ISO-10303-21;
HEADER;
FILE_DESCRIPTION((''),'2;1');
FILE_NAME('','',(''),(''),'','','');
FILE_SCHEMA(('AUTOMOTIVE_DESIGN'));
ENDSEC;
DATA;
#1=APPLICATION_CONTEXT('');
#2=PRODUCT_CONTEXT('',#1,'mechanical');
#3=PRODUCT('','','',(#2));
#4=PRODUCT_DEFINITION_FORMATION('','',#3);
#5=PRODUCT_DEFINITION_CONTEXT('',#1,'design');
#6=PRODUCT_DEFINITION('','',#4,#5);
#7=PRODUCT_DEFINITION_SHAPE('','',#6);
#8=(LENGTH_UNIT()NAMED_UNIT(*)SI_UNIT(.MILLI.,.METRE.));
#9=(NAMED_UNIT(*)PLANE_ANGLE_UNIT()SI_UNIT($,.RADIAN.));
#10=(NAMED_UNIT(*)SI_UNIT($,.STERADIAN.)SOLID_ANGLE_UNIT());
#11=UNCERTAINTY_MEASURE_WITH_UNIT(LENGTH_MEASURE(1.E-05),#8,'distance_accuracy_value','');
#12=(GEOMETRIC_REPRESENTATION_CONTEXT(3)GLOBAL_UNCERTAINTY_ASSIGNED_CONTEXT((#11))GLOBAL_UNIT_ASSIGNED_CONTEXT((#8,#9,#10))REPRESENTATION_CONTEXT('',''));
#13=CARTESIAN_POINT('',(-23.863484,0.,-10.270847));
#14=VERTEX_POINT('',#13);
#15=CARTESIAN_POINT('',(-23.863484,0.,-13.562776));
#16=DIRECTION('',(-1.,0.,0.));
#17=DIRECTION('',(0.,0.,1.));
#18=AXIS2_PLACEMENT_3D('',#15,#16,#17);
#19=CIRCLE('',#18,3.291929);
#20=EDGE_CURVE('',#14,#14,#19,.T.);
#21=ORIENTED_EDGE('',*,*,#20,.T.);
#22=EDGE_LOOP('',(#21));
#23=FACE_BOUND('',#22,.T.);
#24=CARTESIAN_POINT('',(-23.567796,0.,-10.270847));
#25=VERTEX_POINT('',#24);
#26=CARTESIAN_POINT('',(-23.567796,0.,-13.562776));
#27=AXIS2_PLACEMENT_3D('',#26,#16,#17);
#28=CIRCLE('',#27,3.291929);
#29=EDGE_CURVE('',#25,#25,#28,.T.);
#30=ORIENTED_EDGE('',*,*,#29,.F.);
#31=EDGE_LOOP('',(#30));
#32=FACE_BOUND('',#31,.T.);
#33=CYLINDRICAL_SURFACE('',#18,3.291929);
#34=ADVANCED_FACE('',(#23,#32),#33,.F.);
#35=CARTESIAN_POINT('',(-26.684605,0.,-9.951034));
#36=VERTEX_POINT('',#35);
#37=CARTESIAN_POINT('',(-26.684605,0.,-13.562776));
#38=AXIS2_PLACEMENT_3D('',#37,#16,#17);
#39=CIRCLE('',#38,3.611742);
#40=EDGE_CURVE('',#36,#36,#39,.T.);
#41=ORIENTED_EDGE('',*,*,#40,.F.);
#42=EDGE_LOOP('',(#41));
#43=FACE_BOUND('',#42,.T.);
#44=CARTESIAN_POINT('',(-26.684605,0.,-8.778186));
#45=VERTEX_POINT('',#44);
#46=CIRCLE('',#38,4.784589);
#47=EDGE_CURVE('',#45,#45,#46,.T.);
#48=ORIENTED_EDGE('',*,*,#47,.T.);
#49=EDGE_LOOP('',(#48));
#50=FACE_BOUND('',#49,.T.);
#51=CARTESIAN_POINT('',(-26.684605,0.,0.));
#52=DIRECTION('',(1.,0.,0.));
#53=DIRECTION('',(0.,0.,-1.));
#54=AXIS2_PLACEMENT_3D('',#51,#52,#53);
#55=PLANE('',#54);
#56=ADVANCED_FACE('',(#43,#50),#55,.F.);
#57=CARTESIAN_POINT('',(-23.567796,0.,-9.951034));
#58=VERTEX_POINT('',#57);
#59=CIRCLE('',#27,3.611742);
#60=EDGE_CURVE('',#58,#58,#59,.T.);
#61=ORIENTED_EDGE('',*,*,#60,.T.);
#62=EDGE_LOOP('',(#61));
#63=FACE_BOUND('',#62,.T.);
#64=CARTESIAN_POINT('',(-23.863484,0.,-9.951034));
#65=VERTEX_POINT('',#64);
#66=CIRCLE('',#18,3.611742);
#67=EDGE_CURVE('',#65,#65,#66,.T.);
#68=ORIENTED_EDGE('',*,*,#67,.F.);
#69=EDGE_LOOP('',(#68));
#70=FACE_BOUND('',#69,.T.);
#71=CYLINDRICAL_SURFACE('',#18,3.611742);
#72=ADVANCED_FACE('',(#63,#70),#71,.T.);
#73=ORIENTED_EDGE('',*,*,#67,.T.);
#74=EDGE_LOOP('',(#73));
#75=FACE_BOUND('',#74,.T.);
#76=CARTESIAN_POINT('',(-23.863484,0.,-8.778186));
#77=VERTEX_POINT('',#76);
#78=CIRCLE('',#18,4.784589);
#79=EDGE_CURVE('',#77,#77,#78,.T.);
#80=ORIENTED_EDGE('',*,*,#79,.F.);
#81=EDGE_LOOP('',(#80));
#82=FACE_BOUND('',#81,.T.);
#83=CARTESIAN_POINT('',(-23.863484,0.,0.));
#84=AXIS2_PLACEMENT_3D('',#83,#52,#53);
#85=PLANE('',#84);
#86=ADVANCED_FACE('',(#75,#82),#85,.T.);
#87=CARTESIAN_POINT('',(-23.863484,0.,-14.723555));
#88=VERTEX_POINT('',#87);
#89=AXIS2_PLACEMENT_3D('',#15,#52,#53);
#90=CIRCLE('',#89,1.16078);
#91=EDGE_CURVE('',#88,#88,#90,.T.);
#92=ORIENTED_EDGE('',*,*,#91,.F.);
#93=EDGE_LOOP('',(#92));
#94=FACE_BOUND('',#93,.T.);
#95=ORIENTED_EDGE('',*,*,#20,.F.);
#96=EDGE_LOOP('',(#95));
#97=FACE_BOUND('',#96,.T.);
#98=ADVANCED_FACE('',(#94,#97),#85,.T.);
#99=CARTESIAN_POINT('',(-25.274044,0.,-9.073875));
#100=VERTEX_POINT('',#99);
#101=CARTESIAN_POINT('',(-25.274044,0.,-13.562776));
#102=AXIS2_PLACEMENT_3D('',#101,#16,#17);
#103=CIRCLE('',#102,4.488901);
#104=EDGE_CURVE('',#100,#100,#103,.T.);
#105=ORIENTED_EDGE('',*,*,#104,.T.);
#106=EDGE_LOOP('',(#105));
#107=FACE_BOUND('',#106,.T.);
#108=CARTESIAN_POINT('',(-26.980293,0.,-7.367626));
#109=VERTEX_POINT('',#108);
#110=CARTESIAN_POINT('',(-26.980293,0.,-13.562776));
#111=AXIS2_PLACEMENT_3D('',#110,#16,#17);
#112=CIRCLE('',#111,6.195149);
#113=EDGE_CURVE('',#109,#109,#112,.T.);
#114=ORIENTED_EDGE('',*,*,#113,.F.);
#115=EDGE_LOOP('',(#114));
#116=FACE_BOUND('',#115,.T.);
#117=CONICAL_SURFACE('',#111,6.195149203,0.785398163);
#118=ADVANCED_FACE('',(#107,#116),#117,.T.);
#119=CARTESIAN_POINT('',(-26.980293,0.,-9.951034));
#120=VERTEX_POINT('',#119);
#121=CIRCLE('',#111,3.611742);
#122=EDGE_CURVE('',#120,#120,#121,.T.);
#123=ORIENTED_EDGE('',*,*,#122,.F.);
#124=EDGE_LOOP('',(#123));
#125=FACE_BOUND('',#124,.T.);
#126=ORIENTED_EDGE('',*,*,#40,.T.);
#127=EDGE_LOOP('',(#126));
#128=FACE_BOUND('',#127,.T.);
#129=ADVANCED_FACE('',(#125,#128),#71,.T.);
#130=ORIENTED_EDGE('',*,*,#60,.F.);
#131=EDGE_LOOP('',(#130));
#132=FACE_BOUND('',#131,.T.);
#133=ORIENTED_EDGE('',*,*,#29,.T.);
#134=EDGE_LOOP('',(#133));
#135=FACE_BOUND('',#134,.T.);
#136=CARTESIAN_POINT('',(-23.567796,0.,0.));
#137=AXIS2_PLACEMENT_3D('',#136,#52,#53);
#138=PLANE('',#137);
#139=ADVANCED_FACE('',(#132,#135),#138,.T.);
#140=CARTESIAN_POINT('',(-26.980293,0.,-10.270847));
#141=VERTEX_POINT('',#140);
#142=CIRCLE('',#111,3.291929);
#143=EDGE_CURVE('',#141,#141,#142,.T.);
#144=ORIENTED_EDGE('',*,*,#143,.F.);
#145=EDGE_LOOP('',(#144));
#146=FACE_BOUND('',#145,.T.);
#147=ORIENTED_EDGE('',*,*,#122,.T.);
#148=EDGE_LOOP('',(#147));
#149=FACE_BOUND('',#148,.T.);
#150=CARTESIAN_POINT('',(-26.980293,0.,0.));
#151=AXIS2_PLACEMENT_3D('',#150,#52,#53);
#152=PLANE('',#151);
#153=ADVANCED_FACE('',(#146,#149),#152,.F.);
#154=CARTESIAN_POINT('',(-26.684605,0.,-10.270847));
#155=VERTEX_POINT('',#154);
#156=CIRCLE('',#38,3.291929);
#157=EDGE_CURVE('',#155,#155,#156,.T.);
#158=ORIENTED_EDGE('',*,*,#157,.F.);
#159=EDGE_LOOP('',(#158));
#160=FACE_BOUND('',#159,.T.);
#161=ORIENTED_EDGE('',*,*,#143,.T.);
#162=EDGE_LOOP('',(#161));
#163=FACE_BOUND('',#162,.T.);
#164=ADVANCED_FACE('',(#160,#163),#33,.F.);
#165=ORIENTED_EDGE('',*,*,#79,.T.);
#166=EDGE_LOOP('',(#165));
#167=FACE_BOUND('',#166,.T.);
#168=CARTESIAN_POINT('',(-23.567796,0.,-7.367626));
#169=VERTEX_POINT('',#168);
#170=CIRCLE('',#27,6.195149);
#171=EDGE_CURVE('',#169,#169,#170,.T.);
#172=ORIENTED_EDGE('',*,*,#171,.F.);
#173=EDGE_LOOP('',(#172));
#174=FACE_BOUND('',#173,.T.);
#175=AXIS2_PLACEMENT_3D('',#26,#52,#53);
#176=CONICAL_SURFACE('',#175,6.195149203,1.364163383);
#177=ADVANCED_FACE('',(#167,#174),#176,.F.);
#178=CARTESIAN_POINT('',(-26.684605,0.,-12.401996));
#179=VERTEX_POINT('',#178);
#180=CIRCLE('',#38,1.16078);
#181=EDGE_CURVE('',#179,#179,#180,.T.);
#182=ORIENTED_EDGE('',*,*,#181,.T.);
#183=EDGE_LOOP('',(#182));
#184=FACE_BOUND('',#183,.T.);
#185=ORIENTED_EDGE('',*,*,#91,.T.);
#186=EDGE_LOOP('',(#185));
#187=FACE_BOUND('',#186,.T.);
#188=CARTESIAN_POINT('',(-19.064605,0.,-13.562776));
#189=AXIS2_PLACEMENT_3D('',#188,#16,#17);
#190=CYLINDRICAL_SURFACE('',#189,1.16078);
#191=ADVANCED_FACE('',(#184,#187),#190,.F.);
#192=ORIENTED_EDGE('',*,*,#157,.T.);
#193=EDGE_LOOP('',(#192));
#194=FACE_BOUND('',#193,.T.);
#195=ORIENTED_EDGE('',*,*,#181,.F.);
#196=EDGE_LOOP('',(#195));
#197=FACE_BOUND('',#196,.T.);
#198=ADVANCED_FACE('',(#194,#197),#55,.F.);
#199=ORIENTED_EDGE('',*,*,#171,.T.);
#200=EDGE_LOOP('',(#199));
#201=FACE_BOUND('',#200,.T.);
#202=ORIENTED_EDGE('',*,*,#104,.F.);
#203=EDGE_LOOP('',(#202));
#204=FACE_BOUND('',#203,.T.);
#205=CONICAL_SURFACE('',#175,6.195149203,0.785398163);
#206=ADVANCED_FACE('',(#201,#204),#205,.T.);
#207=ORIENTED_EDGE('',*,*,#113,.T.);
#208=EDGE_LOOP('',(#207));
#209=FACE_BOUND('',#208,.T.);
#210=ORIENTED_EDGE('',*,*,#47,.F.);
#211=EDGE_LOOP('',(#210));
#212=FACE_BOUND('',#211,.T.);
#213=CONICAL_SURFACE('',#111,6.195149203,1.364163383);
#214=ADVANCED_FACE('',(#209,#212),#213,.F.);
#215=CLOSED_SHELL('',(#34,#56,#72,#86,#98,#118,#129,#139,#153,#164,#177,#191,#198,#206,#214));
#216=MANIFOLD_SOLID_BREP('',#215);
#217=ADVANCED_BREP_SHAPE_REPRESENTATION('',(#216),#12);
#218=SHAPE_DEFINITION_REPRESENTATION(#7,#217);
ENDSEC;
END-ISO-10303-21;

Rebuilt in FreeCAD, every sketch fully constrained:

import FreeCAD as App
import Part
import Sketcher

V = App.Vector
Q = App.Units.Quantity


def add_polygon(sketch, points):
    """Adds a closed chain of lines whose ends are joined by coincident constraints."""
    first, n = sketch.GeometryCount, len(points)
    for a, b in zip(points, points[1:] + points[:1]):
        sketch.addGeometry(Part.LineSegment(App.Vector(*a, 0), App.Vector(*b, 0)), False)
    for i in range(n):
        sketch.addConstraint(Sketcher.Constraint("Coincident", first + i, 2, first + (i + 1) % n, 1))

doc = App.newDocument("Part")
body = doc.addObject("PartDesign::Body", "Body")

# Sketch on XZ plane
sketch1 = body.newObject("Sketcher::SketchObject", "Sketch")
sketch1.AttachmentSupport = (doc.getObject("XZ_Plane"), [""])
sketch1.MapMode = "FlatFace"
add_polygon(sketch1, [(-25.27, -9.07), (-23.57, -7.37), (-23.86, -8.78), (-23.86, -9.95), (-23.57, -9.95), (-23.57, -10.27), (-23.86, -10.27), (-23.86, -13.56), (-26.68, -13.56), (-26.68, -10.27), (-26.98, -10.27), (-26.98, -9.95), (-26.68, -9.95), (-26.68, -8.78), (-26.98, -7.37)])  # lines 0-14
sketch1.addGeometry(Part.LineSegment(V(-26.98, -13.56, 0), V(-23.57, -13.56, 0)), True)  # axis
sketch1.addConstraint([
    Sketcher.Constraint("Vertical", 2),
    Sketcher.Constraint("Horizontal", 3),
    Sketcher.Constraint("Vertical", 4),
    Sketcher.Constraint("Horizontal", 5),
    Sketcher.Constraint("Vertical", 6),
    Sketcher.Constraint("Horizontal", 7),
    Sketcher.Constraint("Vertical", 8),
    Sketcher.Constraint("Horizontal", 9),
    Sketcher.Constraint("Vertical", 10),
    Sketcher.Constraint("Horizontal", 11),
    Sketcher.Constraint("Vertical", 12),
    Sketcher.Constraint("Horizontal", 15),
    Sketcher.Constraint("Perpendicular", 0, 14),
    Sketcher.Constraint("Horizontal", 5, 2, 8, 2),
    Sketcher.Constraint("Horizontal", 3, 2, 10, 2),
    Sketcher.Constraint("Horizontal", 1, 2, 12, 2),
    Sketcher.Constraint("Horizontal", 0, 2, 13, 2),
    Sketcher.Constraint("Horizontal", 7, 2, 15, 1),
    Sketcher.Constraint("Vertical", 0, 2, 3, 2),
    Sketcher.Constraint("Vertical", 2, 2, 5, 2),
    Sketcher.Constraint("Vertical", 8, 2, 11, 2),
    Sketcher.Constraint("Vertical", 10, 2, 13, 2),
    Sketcher.Constraint("Vertical", 13, 2, 15, 1),
    Sketcher.Constraint("Vertical", 4, 2, 15, 2),
    Sketcher.Constraint("Equal", 5, 9),
    Sketcher.Constraint("Equal", 0, 14),
    Sketcher.Constraint("Distance", 0, Q("0.095 in")),
    Sketcher.Constraint("DistanceY", 4, 2, 0, 2, Q("0.1143 in")),
    Sketcher.Constraint("DistanceX", 3, 1, 3, 2, Q("0.295689 mm")),
    Sketcher.Constraint("DistanceY", 6, 2, 6, 1, Q("3.291929 mm")),
    Sketcher.Constraint("Distance", 1, Q("1.441219 mm")),
    Sketcher.Constraint("DistanceY", 2, 2, 2, 1, Q("1.172847 mm")),
    Sketcher.Constraint("DistanceX", 0, 2, -1, 1, Q("23.567796 mm")),
    Sketcher.Constraint("DistanceY", 0, 2, -1, 1, Q("7.367626 mm")),
])
revolution = body.newObject("PartDesign::Revolution", "Revolution")
revolution.Profile = sketch1
revolution.ReferenceAxis = (sketch1, ["Axis0"])
revolution.Angle = 360

# Sketch on YZ plane
sketch2 = body.newObject("Sketcher::SketchObject", "Sketch001")
sketch2.AttachmentSupport = (doc.getObject("YZ_Plane"), [""])
sketch2.MapMode = "FlatFace"
sketch2.AttachmentOffset = App.Placement(V(0, 0, -26.684605), App.Rotation())
sketch2.addGeometry(Part.Circle(V(0, -13.6, 0), V(0, 0, 1), 1.2), False)
sketch2.addConstraint([
    Sketcher.Constraint("PointOnObject", 0, 3, -2),
    Sketcher.Constraint("Diameter", 0, Q("0.0914 in")),
    Sketcher.Constraint("DistanceY", 0, 3, -1, 1, Q("13.562776 mm")),
])
pocket1 = body.newObject("PartDesign::Pocket", "Pocket")
pocket1.Profile = sketch2
pocket1.Length = Q("0.3 in")
pocket1.Reversed = True

doc.recompute()
